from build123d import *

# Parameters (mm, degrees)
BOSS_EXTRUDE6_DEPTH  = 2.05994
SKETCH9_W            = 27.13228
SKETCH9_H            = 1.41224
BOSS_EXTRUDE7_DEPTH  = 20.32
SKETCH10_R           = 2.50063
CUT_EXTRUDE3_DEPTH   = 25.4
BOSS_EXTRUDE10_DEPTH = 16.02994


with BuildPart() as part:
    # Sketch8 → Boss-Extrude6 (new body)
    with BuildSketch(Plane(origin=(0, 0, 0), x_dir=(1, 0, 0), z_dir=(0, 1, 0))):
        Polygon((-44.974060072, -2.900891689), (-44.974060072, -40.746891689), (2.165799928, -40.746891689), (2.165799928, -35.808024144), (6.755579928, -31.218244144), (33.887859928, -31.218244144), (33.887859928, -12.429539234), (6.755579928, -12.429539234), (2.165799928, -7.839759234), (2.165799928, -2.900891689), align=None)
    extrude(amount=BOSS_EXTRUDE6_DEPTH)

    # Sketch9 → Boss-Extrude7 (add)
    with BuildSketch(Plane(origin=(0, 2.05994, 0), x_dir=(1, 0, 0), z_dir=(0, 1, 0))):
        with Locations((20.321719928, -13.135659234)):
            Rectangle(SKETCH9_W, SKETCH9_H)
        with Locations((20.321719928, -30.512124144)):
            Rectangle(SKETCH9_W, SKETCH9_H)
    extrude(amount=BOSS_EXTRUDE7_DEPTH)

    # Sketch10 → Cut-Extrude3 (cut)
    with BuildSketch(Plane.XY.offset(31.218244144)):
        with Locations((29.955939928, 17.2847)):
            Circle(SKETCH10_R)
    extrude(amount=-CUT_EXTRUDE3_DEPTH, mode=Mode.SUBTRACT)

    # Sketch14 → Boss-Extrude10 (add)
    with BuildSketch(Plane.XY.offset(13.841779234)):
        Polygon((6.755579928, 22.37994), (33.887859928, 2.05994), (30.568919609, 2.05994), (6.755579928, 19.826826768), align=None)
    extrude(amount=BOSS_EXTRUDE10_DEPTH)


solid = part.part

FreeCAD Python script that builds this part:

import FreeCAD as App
import Part
import Sketcher
Q = App.Units.Quantity

doc = App.newDocument("Part")
body = doc.addObject("PartDesign::Body", "Body")

sketch1 = body.newObject("Sketcher::SketchObject", "Sketch")
sketch1.AttachmentSupport = (doc.getObject("XZ_Plane"), [""])
sketch1.MapMode = "FlatFace"
sketch1.addGeometry(Part.LineSegment(App.Vector(-45, 2.9, 0), App.Vector(-45, 40.7, 0)), False)
sketch1.addGeometry(Part.LineSegment(App.Vector(-45, 40.7, 0), App.Vector(2.2, 40.7, 0)), False)
sketch1.addGeometry(Part.LineSegment(App.Vector(2.2, 40.7, 0), App.Vector(2.2, 35.8, 0)), False)
sketch1.addGeometry(Part.LineSegment(App.Vector(2.2, 35.8, 0), App.Vector(6.8, 31.2, 0)), False)
sketch1.addGeometry(Part.LineSegment(App.Vector(6.8, 31.2, 0), App.Vector(33.9, 31.2, 0)), False)
sketch1.addGeometry(Part.LineSegment(App.Vector(33.9, 31.2, 0), App.Vector(33.9, 12.4, 0)), False)
sketch1.addGeometry(Part.LineSegment(App.Vector(33.9, 12.4, 0), App.Vector(6.8, 12.4, 0)), False)
sketch1.addGeometry(Part.LineSegment(App.Vector(6.8, 12.4, 0), App.Vector(2.2, 7.8, 0)), False)
sketch1.addGeometry(Part.LineSegment(App.Vector(2.2, 7.8, 0), App.Vector(2.2, 2.9, 0)), False)
sketch1.addGeometry(Part.LineSegment(App.Vector(2.2, 2.9, 0), App.Vector(-45, 2.9, 0)), False)
sketch1.addConstraint(Sketcher.Constraint("Coincident", 0, 2, 1, 1))
sketch1.addConstraint(Sketcher.Constraint("Coincident", 1, 2, 2, 1))
sketch1.addConstraint(Sketcher.Constraint("Coincident", 2, 2, 3, 1))
sketch1.addConstraint(Sketcher.Constraint("Coincident", 3, 2, 4, 1))
sketch1.addConstraint(Sketcher.Constraint("Coincident", 4, 2, 5, 1))
sketch1.addConstraint(Sketcher.Constraint("Coincident", 5, 2, 6, 1))
sketch1.addConstraint(Sketcher.Constraint("Coincident", 6, 2, 7, 1))
sketch1.addConstraint(Sketcher.Constraint("Coincident", 7, 2, 8, 1))
sketch1.addConstraint(Sketcher.Constraint("Coincident", 8, 2, 9, 1))
sketch1.addConstraint(Sketcher.Constraint("Coincident", 9, 2, 0, 1))
sketch1.addConstraint(Sketcher.Constraint("Vertical", 0))
sketch1.addConstraint(Sketcher.Constraint("Horizontal", 1))
sketch1.addConstraint(Sketcher.Constraint("Vertical", 2))
sketch1.addConstraint(Sketcher.Constraint("Horizontal", 4))
sketch1.addConstraint(Sketcher.Constraint("Vertical", 5))
sketch1.addConstraint(Sketcher.Constraint("Horizontal", 6))
sketch1.addConstraint(Sketcher.Constraint("Vertical", 8))
sketch1.addConstraint(Sketcher.Constraint("Horizontal", 9))
sketch1.addConstraint(Sketcher.Constraint("Perpendicular", 3, 7))
sketch1.addConstraint(Sketcher.Constraint("Vertical", 3, 2, 6, 2))
sketch1.addConstraint(Sketcher.Constraint("Vertical", 2, 2, 7, 2))
sketch1.addConstraint(Sketcher.Constraint("Equal", 2, 8))
sketch1.addConstraint(Sketcher.Constraint("Equal", 3, 7))
sketch1.addConstraint(Sketcher.Constraint("DistanceY", 0, 1, 0, 2, Q("1.49 in")))
sketch1.addConstraint(Sketcher.Constraint("DistanceX", 1, 1, 1, 2, Q("1.8559 in")))
sketch1.addConstraint(Sketcher.Constraint("DistanceX", 4, 1, 4, 2, Q("1.0682 in")))
sketch1.addConstraint(Sketcher.Constraint("DistanceX", 2, 2, 3, 2, Q("0.1807 in")))
sketch1.addConstraint(Sketcher.Constraint("DistanceX", -1, 1, 1, 2, 2.1658))
sketch1.addConstraint(Sketcher.Constraint("DistanceY", 2, 2, 2, 1, 4.938868))
sketch1.addConstraint(Sketcher.Constraint("DistanceY", -1, 1, 0, 2, 40.746892))
pad1 = body.newObject("PartDesign::Pad", "Pad")
pad1.Profile = sketch1
pad1.Length = Q("0.0811 in")
pad1.Reversed = True

sketch2 = body.newObject("Sketcher::SketchObject", "Sketch001")
sketch2.AttachmentSupport = (doc.getObject("XZ_Plane"), [""])
sketch2.MapMode = "FlatFace"
sketch2.AttachmentOffset = App.Placement(App.Vector(0, 0, -0.0811 * 25.4), App.Rotation())
sketch2.addGeometry(Part.LineSegment(App.Vector(6.8, 12.4, 0), App.Vector(6.8, 13.8, 0)), False)
sketch2.addGeometry(Part.LineSegment(App.Vector(6.8, 13.8, 0), App.Vector(33.9, 13.8, 0)), False)
sketch2.addGeometry(Part.LineSegment(App.Vector(33.9, 13.8, 0), App.Vector(33.9, 12.4, 0)), False)
sketch2.addGeometry(Part.LineSegment(App.Vector(33.9, 12.4, 0), App.Vector(6.8, 12.4, 0)), False)
sketch2.addGeometry(Part.LineSegment(App.Vector(6.8, 29.8, 0), App.Vector(6.8, 31.2, 0)), False)
sketch2.addGeometry(Part.LineSegment(App.Vector(6.8, 31.2, 0), App.Vector(33.9, 31.2, 0)), False)
sketch2.addGeometry(Part.LineSegment(App.Vector(33.9, 31.2, 0), App.Vector(33.9, 29.8, 0)), False)
sketch2.addGeometry(Part.LineSegment(App.Vector(33.9, 29.8, 0), App.Vector(6.8, 29.8, 0)), False)
sketch2.addConstraint(Sketcher.Constraint("Coincident", 0, 2, 1, 1))
sketch2.addConstraint(Sketcher.Constraint("Coincident", 1, 2, 2, 1))
sketch2.addConstraint(Sketcher.Constraint("Coincident", 2, 2, 3, 1))
sketch2.addConstraint(Sketcher.Constraint("Coincident", 3, 2, 0, 1))
sketch2.addConstraint(Sketcher.Constraint("Coincident", 4, 2, 5, 1))
sketch2.addConstraint(Sketcher.Constraint("Coincident", 5, 2, 6, 1))
sketch2.addConstraint(Sketcher.Constraint("Coincident", 6, 2, 7, 1))
sketch2.addConstraint(Sketcher.Constraint("Coincident", 7, 2, 4, 1))
sketch2.addConstraint(Sketcher.Constraint("Vertical", 0))
sketch2.addConstraint(Sketcher.Constraint("Horizontal", 1))
sketch2.addConstraint(Sketcher.Constraint("Vertical", 2))
sketch2.addConstraint(Sketcher.Constraint("Horizontal", 3))
sketch2.addConstraint(Sketcher.Constraint("Vertical", 4))
sketch2.addConstraint(Sketcher.Constraint("Horizontal", 5))
sketch2.addConstraint(Sketcher.Constraint("Vertical", 6))
sketch2.addConstraint(Sketcher.Constraint("Horizontal", 7))
sketch2.addConstraint(Sketcher.Constraint("Vertical", 3, 2, 4, 2))
sketch2.addConstraint(Sketcher.Constraint("Vertical", 2, 2, 5, 2))
sketch2.addConstraint(Sketcher.Constraint("Equal", 2, 4))
sketch2.addConstraint(Sketcher.Constraint("DistanceX", 1, 1, 1, 2, Q("1.0682 in")))
sketch2.addConstraint(Sketcher.Constraint("DistanceY", 0, 1, 0, 2, Q("0.0556 in")))
sketch2.addConstraint(Sketcher.Constraint("DistanceX", -1, 1, 0, 2, 6.75558))
sketch2.addConstraint(Sketcher.Constraint("DistanceY", -1, 1, 0, 2, 13.841779))
sketch2.addConstraint(Sketcher.Constraint("DistanceY", -1, 1, 4, 2, 31.218244))
pad2 = body.newObject("PartDesign::Pad", "Pad001")
pad2.Profile = sketch2
pad2.Length = Q("0.8 in")
pad2.Reversed = True

sketch3 = body.newObject("Sketcher::SketchObject", "Sketch002")
sketch3.AttachmentSupport = (doc.getObject("XY_Plane"), [""])
sketch3.MapMode = "FlatFace"
sketch3.AttachmentOffset = App.Placement(App.Vector(0, 0, 31.218244), App.Rotation())
sketch3.addGeometry(Part.Circle(App.Vector(30, 17.3, 0), App.Vector(0, 0, 1), 2.5), False)
sketch3.addConstraint(Sketcher.Constraint("Diameter", 0, Q("0.1969 in")))
sketch3.addConstraint(Sketcher.Constraint("DistanceY", -1, 1, 0, 3, Q("0.6805 in")))
sketch3.addConstraint(Sketcher.Constraint("DistanceX", -1, 1, 0, 3, 29.95594))
pocket1 = body.newObject("PartDesign::Pocket", "Pocket")
pocket1.Profile = sketch3
pocket1.Length = Q("1 in")

sketch4 = body.newObject("Sketcher::SketchObject", "Sketch003")
sketch4.AttachmentSupport = (doc.getObject("XY_Plane"), [""])
sketch4.MapMode = "FlatFace"
sketch4.AttachmentOffset = App.Placement(App.Vector(0, 0, 13.841779), App.Rotation())
sketch4.addGeometry(Part.LineSegment(App.Vector(33.9, 2.1, 0), App.Vector(6.8, 22.4, 0)), False)
sketch4.addGeometry(Part.LineSegment(App.Vector(6.8, 22.4, 0), App.Vector(6.8, 19.8, 0)), False)
sketch4.addGeometry(Part.LineSegment(App.Vector(6.8, 19.8, 0), App.Vector(30.6, 2.1, 0)), False)
sketch4.addGeometry(Part.LineSegment(App.Vector(30.6, 2.1, 0), App.Vector(33.9, 2.1, 0)), False)
sketch4.addConstraint(Sketcher.Constraint("Coincident", 0, 2, 1, 1))
sketch4.addConstraint(Sketcher.Constraint("Coincident", 1, 2, 2, 1))
sketch4.addConstraint(Sketcher.Constraint("Coincident", 2, 2, 3, 1))
sketch4.addConstraint(Sketcher.Constraint("Coincident", 3, 2, 0, 1))
sketch4.addConstraint(Sketcher.Constraint("Vertical", 1))
sketch4.addConstraint(Sketcher.Constraint("Horizontal", 3))
sketch4.addConstraint(Sketcher.Constraint("DistanceY", 2, 2, 0, 2, Q("0.8 in")))
sketch4.addConstraint(Sketcher.Constraint("DistanceY", -1, 1, 0, 2, Q("0.8811 in")))
sketch4.addConstraint(Sketcher.Constraint("DistanceX", 1, 2, 3, 2, Q("1.0682 in")))
sketch4.addConstraint(Sketcher.Constraint("DistanceX", 3, 1, 3, 2, 3.31894))
sketch4.addConstraint(Sketcher.Constraint("DistanceY", 1, 2, 1, 1, 2.553113))
sketch4.addConstraint(Sketcher.Constraint("DistanceX", -1, 1, 0, 2, 6.75558))
pad3 = body.newObject("PartDesign::Pad", "Pad002")
pad3.Profile = sketch4
pad3.Length = Q("0.6311 in")

doc.recompute()
